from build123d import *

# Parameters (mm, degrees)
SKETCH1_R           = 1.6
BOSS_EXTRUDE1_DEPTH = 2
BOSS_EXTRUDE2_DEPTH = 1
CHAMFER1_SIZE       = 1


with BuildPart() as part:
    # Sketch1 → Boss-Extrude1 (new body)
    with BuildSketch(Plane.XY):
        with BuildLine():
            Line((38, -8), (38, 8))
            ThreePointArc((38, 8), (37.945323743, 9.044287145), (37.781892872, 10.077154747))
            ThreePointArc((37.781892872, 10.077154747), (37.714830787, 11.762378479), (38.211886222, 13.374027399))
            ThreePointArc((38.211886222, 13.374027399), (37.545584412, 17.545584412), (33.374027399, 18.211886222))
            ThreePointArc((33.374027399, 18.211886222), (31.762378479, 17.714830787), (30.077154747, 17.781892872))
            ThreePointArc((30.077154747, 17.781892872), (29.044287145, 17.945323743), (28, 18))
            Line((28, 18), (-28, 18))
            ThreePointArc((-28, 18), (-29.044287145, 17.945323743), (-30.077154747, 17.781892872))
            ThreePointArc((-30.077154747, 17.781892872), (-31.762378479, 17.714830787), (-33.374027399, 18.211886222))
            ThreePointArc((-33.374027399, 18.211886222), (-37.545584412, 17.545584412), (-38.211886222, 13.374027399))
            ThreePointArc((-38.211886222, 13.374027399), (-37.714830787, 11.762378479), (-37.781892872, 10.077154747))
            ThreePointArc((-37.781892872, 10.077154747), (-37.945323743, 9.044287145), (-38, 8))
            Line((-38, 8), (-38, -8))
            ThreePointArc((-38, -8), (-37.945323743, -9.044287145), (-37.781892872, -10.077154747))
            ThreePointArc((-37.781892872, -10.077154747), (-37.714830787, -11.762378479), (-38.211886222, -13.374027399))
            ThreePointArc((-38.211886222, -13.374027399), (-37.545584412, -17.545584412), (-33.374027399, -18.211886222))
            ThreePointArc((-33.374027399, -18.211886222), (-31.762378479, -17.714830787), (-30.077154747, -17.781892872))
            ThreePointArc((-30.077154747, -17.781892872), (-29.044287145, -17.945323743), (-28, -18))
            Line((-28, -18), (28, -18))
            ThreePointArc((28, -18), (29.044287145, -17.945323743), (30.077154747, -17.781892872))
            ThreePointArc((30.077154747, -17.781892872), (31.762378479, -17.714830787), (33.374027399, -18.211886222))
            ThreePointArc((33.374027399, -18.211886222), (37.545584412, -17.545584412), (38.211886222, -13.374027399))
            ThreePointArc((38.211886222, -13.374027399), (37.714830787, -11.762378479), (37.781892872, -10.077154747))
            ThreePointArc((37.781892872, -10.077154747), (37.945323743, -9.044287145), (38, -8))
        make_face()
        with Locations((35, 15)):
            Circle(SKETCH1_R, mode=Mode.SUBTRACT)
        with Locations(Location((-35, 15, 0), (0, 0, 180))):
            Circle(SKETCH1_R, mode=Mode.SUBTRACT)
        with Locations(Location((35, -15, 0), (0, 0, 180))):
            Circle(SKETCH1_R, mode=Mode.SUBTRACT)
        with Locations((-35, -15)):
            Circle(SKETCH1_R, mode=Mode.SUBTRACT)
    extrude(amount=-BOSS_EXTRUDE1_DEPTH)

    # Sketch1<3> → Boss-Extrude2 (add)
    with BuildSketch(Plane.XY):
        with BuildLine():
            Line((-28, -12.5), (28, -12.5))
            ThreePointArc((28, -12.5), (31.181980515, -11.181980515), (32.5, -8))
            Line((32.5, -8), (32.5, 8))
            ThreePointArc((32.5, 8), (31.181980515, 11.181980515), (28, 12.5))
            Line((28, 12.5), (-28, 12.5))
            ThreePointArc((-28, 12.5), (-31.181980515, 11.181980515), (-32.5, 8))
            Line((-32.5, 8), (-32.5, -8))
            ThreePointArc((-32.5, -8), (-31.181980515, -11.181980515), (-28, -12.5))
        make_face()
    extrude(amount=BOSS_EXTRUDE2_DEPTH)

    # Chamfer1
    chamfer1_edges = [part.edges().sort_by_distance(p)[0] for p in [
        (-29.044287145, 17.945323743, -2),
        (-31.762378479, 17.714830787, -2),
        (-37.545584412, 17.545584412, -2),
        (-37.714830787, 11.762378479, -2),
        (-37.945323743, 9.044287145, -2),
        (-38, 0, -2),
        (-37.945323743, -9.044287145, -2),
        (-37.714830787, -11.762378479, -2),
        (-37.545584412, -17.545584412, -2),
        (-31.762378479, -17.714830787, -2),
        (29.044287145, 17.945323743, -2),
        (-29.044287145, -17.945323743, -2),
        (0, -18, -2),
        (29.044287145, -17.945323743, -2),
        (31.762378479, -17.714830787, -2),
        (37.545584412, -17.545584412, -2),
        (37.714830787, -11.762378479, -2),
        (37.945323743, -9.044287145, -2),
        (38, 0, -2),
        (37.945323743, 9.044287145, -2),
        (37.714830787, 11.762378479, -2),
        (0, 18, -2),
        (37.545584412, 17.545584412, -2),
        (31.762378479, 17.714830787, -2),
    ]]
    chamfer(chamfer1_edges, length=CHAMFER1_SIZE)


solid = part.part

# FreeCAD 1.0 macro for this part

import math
import FreeCAD as App
import Part
import Sketcher


def edges_at(feature, points):
    """Names of the edges that pass closest to the given points."""
    edges = feature.Shape.Edges
    near = lambda p: min(range(len(edges)), key=lambda i: edges[i].distToShape(Part.Vertex(*p))[0])
    return sorted({f"Edge{near(p) + 1}" for p in points})

doc = App.newDocument("Part")
body = doc.addObject("PartDesign::Body", "Body")

# Sketch on XY plane
sketch1 = body.newObject("Sketcher::SketchObject", "Sketch")
sketch1.AttachmentSupport = (doc.getObject("XY_Plane"), [""])
sketch1.MapMode = "FlatFace"
sketch1.addGeometry(Part.LineSegment(App.Vector(38, -8, 0), App.Vector(38, 8, 0)), False)
sketch1.addGeometry(Part.ArcOfCircle(Part.Circle(App.Vector(28, 8, 0), App.Vector(0, 0, 1), 10), math.radians(0), math.radians(11.99)), False)
sketch1.addGeometry(Part.ArcOfCircle(Part.Circle(App.Vector(42.7, 11.1, 0), App.Vector(0, 0, 1), 5), math.radians(153), math.radians(192)), False)
sketch1.addGeometry(Part.ArcOfCircle(Part.Circle(App.Vector(35, 15, 0), App.Vector(0, 0, 1), 3.6), math.radians(-27), math.radians(117)), False)
sketch1.addGeometry(Part.ArcOfCircle(Part.Circle(App.Vector(31.1, 22.7, 0), App.Vector(0, 0, 1), 5), math.radians(-102), math.radians(-63)), False)
sketch1.addGeometry(Part.ArcOfCircle(Part.Circle(App.Vector(28, 8, 0), App.Vector(0, 0, 1), 10), math.radians(78.01), math.radians(90)), False)
sketch1.addGeometry(Part.LineSegment(App.Vector(28, 18, 0), App.Vector(-28, 18, 0)), False)
sketch1.addGeometry(Part.ArcOfCircle(Part.Circle(App.Vector(-28, 8, 0), App.Vector(0, 0, 1), 10), math.radians(90), math.radians(101.99)), False)
sketch1.addGeometry(Part.ArcOfCircle(Part.Circle(App.Vector(-31.1, 22.7, 0), App.Vector(0, 0, 1), 5), math.radians(-117), math.radians(-78)), False)
sketch1.addGeometry(Part.ArcOfCircle(Part.Circle(App.Vector(-35, 15, 0), App.Vector(0, 0, 1), 3.6), math.radians(63), math.radians(207)), False)
sketch1.addGeometry(Part.ArcOfCircle(Part.Circle(App.Vector(-42.7, 11.1, 0), App.Vector(0, 0, 1), 5), math.radians(-12), math.radians(27)), False)
sketch1.addGeometry(Part.ArcOfCircle(Part.Circle(App.Vector(-28, 8, 0), App.Vector(0, 0, 1), 10), math.radians(168.01), math.radians(180)), False)
sketch1.addGeometry(Part.LineSegment(App.Vector(-38, 8, 0), App.Vector(-38, -8, 0)), False)
sketch1.addGeometry(Part.ArcOfCircle(Part.Circle(App.Vector(-28, -8, 0), App.Vector(0, 0, 1), 10), math.radians(-180), math.radians(-168.01)), False)
sketch1.addGeometry(Part.ArcOfCircle(Part.Circle(App.Vector(-42.7, -11.1, 0), App.Vector(0, 0, 1), 5), math.radians(-27), math.radians(12)), False)
sketch1.addGeometry(Part.ArcOfCircle(Part.Circle(App.Vector(-35, -15, 0), App.Vector(0, 0, 1), 3.6), math.radians(153), math.radians(297)), False)
sketch1.addGeometry(Part.ArcOfCircle(Part.Circle(App.Vector(-31.1, -22.7, 0), App.Vector(0, 0, 1), 5), math.radians(78), math.radians(117)), False)
sketch1.addGeometry(Part.ArcOfCircle(Part.Circle(App.Vector(-28, -8, 0), App.Vector(0, 0, 1), 10), math.radians(-101.99), math.radians(-90)), False)
sketch1.addGeometry(Part.LineSegment(App.Vector(-28, -18, 0), App.Vector(28, -18, 0)), False)
sketch1.addGeometry(Part.ArcOfCircle(Part.Circle(App.Vector(28, -8, 0), App.Vector(0, 0, 1), 10), math.radians(-90), math.radians(-78.01)), False)
sketch1.addGeometry(Part.ArcOfCircle(Part.Circle(App.Vector(31.1, -22.7, 0), App.Vector(0, 0, 1), 5), math.radians(63), math.radians(102)), False)
sketch1.addGeometry(Part.ArcOfCircle(Part.Circle(App.Vector(35, -15, 0), App.Vector(0, 0, 1), 3.6), math.radians(-117), math.radians(27)), False)
sketch1.addGeometry(Part.ArcOfCircle(Part.Circle(App.Vector(42.7, -11.1, 0), App.Vector(0, 0, 1), 5), math.radians(168), math.radians(207)), False)
sketch1.addGeometry(Part.ArcOfCircle(Part.Circle(App.Vector(28, -8, 0), App.Vector(0, 0, 1), 10), math.radians(-11.99), math.radians(0)), False)
sketch1.addGeometry(Part.Circle(App.Vector(-35, -15, 0), App.Vector(0, 0, 1), 1.6), False)
sketch1.addGeometry(Part.Circle(App.Vector(35, -15, 0), App.Vector(0, 0, 1), 1.6), False)
sketch1.addGeometry(Part.Circle(App.Vector(-35, 15, 0), App.Vector(0, 0, 1), 1.6), False)
sketch1.addGeometry(Part.Circle(App.Vector(35, 15, 0), App.Vector(0, 0, 1), 1.6), False)
sketch1.addConstraint(Sketcher.Constraint("Tangent", 0, 2, 1, 1))
sketch1.addConstraint(Sketcher.Constraint("Tangent", 1, 2, 2, 2))
sketch1.addConstraint(Sketcher.Constraint("Tangent", 2, 1, 3, 1))
sketch1.addConstraint(Sketcher.Constraint("Tangent", 3, 2, 4, 2))
sketch1.addConstraint(Sketcher.Constraint("Tangent", 4, 1, 5, 1))
sketch1.addConstraint(Sketcher.Constraint("Tangent", 5, 2, 6, 1))
sketch1.addConstraint(Sketcher.Constraint("Tangent", 6, 2, 7, 1))
sketch1.addConstraint(Sketcher.Constraint("Tangent", 7, 2, 8, 2))
sketch1.addConstraint(Sketcher.Constraint("Tangent", 8, 1, 9, 1))
sketch1.addConstraint(Sketcher.Constraint("Tangent", 9, 2, 10, 2))
sketch1.addConstraint(Sketcher.Constraint("Tangent", 10, 1, 11, 1))
sketch1.addConstraint(Sketcher.Constraint("Tangent", 11, 2, 12, 1))
sketch1.addConstraint(Sketcher.Constraint("Tangent", 12, 2, 13, 1))
sketch1.addConstraint(Sketcher.Constraint("Tangent", 13, 2, 14, 2))
sketch1.addConstraint(Sketcher.Constraint("Tangent", 14, 1, 15, 1))
sketch1.addConstraint(Sketcher.Constraint("Tangent", 15, 2, 16, 2))
sketch1.addConstraint(Sketcher.Constraint("Tangent", 16, 1, 17, 1))
sketch1.addConstraint(Sketcher.Constraint("Tangent", 17, 2, 18, 1))
sketch1.addConstraint(Sketcher.Constraint("Tangent", 18, 2, 19, 1))
sketch1.addConstraint(Sketcher.Constraint("Tangent", 19, 2, 20, 2))
sketch1.addConstraint(Sketcher.Constraint("Tangent", 20, 1, 21, 1))
sketch1.addConstraint(Sketcher.Constraint("Tangent", 21, 2, 22, 2))
sketch1.addConstraint(Sketcher.Constraint("Tangent", 22, 1, 23, 1))
sketch1.addConstraint(Sketcher.Constraint("Tangent", 23, 2, 0, 1))
sketch1.addConstraint(Sketcher.Constraint("Vertical", 0))
sketch1.addConstraint(Sketcher.Constraint("Horizontal", 6))
sketch1.addConstraint(Sketcher.Constraint("Vertical", 12))
sketch1.addConstraint(Sketcher.Constraint("Horizontal", 18))
sketch1.addConstraint(Sketcher.Constraint("Coincident", 5, 3, 1, 3))
sketch1.addConstraint(Sketcher.Constraint("Coincident", 11, 3, 7, 3))
sketch1.addConstraint(Sketcher.Constraint("Coincident", 17, 3, 13, 3))
sketch1.addConstraint(Sketcher.Constraint("Coincident", 23, 3, 19, 3))
sketch1.addConstraint(Sketcher.Constraint("Coincident", 24, 3, 15, 3))
sketch1.addConstraint(Sketcher.Constraint("Coincident", 25, 3, 21, 3))
sketch1.addConstraint(Sketcher.Constraint("Coincident", 26, 3, 9, 3))
sketch1.addConstraint(Sketcher.Constraint("Coincident", 27, 3, 3, 3))
sketch1.addConstraint(Sketcher.Constraint("Equal", 2, 4))
sketch1.addConstraint(Sketcher.Constraint("Equal", 1, 5))
sketch1.addConstraint(Sketcher.Constraint("Equal", 5, 7))
sketch1.addConstraint(Sketcher.Constraint("Equal", 4, 8))
sketch1.addConstraint(Sketcher.Constraint("Equal", 3, 9))
sketch1.addConstraint(Sketcher.Constraint("Equal", 8, 10))
sketch1.addConstraint(Sketcher.Constraint("Equal", 7, 11))
sketch1.addConstraint(Sketcher.Constraint("Equal", 11, 13))
sketch1.addConstraint(Sketcher.Constraint("Equal", 10, 14))
sketch1.addConstraint(Sketcher.Constraint("Equal", 9, 15))
sketch1.addConstraint(Sketcher.Constraint("Equal", 14, 16))
sketch1.addConstraint(Sketcher.Constraint("Equal", 13, 17))
sketch1.addConstraint(Sketcher.Constraint("Equal", 17, 19))
sketch1.addConstraint(Sketcher.Constraint("Equal", 16, 20))
sketch1.addConstraint(Sketcher.Constraint("Equal", 15, 21))
sketch1.addConstraint(Sketcher.Constraint("Equal", 20, 22))
sketch1.addConstraint(Sketcher.Constraint("Equal", 19, 23))
sketch1.addConstraint(Sketcher.Constraint("Equal", 24, 25))
sketch1.addConstraint(Sketcher.Constraint("Equal", 25, 26))
sketch1.addConstraint(Sketcher.Constraint("Equal", 26, 27))
sketch1.addConstraint(Sketcher.Constraint("Symmetric", 1, 3, 13, 3, -1, 1))
sketch1.addConstraint(Sketcher.Constraint("Symmetric", 3, 3, 15, 3, -1, 1))
sketch1.addConstraint(Sketcher.Constraint("Symmetric", 9, 3, 21, 3, -1, 1))
sketch1.addConstraint(Sketcher.Constraint("Symmetric", 3, 3, 9, 3, -2))
sketch1.addConstraint(Sketcher.Constraint("Radius", 1, 10.0))
sketch1.addConstraint(Sketcher.Constraint("Radius", 2, 5.0))
sketch1.addConstraint(Sketcher.Constraint("Diameter", 24, 3.2))
sketch1.addConstraint(Sketcher.Constraint("Radius", 3, 3.6))
sketch1.addConstraint(Sketcher.Constraint("DistanceX", 6, 2, 6, 1, 56.0))
sketch1.addConstraint(Sketcher.Constraint("DistanceY", 0, 1, 0, 2, 16.0))
sketch1.addConstraint(Sketcher.Constraint("DistanceX", -1, 1, 3, 3, 35.0))
sketch1.addConstraint(Sketcher.Constraint("DistanceY", -1, 1, 3, 3, 15.0))
pad1 = body.newObject("PartDesign::Pad", "Pad")
pad1.Profile = sketch1
pad1.Length = 2
pad1.Reversed = True

# Sketch on XY plane
sketch2 = body.newObject("Sketcher::SketchObject", "Sketch001")
sketch2.AttachmentSupport = (doc.getObject("XY_Plane"), [""])
sketch2.MapMode = "FlatFace"
sketch2.addGeometry(Part.LineSegment(App.Vector(-28, -12.5, 0), App.Vector(28, -12.5, 0)), False)
sketch2.addGeometry(Part.ArcOfCircle(Part.Circle(App.Vector(28, -8, 0), App.Vector(0, 0, 1), 4.5), math.radians(-90), math.radians(0)), False)
sketch2.addGeometry(Part.LineSegment(App.Vector(32.5, -8, 0), App.Vector(32.5, 8, 0)), False)
sketch2.addGeometry(Part.ArcOfCircle(Part.Circle(App.Vector(28, 8, 0), App.Vector(0, 0, 1), 4.5), math.radians(0), math.radians(90)), False)
sketch2.addGeometry(Part.LineSegment(App.Vector(28, 12.5, 0), App.Vector(-28, 12.5, 0)), False)
sketch2.addGeometry(Part.ArcOfCircle(Part.Circle(App.Vector(-28, 8, 0), App.Vector(0, 0, 1), 4.5), math.radians(90), math.radians(180)), False)
sketch2.addGeometry(Part.LineSegment(App.Vector(-32.5, 8, 0), App.Vector(-32.5, -8, 0)), False)
sketch2.addGeometry(Part.ArcOfCircle(Part.Circle(App.Vector(-28, -8, 0), App.Vector(0, 0, 1), 4.5), math.radians(-180), math.radians(-90)), False)
sketch2.addConstraint(Sketcher.Constraint("Tangent", 0, 2, 1, 1))
sketch2.addConstraint(Sketcher.Constraint("Tangent", 1, 2, 2, 1))
sketch2.addConstraint(Sketcher.Constraint("Tangent", 2, 2, 3, 1))
sketch2.addConstraint(Sketcher.Constraint("Tangent", 3, 2, 4, 1))
sketch2.addConstraint(Sketcher.Constraint("Tangent", 4, 2, 5, 1))
sketch2.addConstraint(Sketcher.Constraint("Tangent", 5, 2, 6, 1))
sketch2.addConstraint(Sketcher.Constraint("Tangent", 6, 2, 7, 1))
sketch2.addConstraint(Sketcher.Constraint("Tangent", 7, 2, 0, 1))
sketch2.addConstraint(Sketcher.Constraint("Horizontal", 0))
sketch2.addConstraint(Sketcher.Constraint("Vertical", 2))
sketch2.addConstraint(Sketcher.Constraint("Horizontal", 4))
sketch2.addConstraint(Sketcher.Constraint("Vertical", 6))
sketch2.addConstraint(Sketcher.Constraint("Equal", 1, 3))
sketch2.addConstraint(Sketcher.Constraint("Equal", 3, 5))
sketch2.addConstraint(Sketcher.Constraint("Equal", 5, 7))
sketch2.addConstraint(Sketcher.Constraint("Symmetric", 1, 3, 5, 3, -1, 1))
sketch2.addConstraint(Sketcher.Constraint("Radius", 1, 4.5))
sketch2.addConstraint(Sketcher.Constraint("DistanceX", 0, 1, 0, 2, 56.0))
sketch2.addConstraint(Sketcher.Constraint("DistanceY", 2, 1, 2, 2, 16.0))
pad2 = body.newObject("PartDesign::Pad", "Pad001")
pad2.Profile = sketch2
pad2.Length = 1
doc.recompute()

chamfer = body.newObject("PartDesign::Chamfer", "Chamfer")
chamfer.Base = (pad2, edges_at(pad2, [
    (-29.044, 17.945, -2),
    (-31.762, 17.715, -2),
    (-37.546, 17.546, -2),
    (-37.715, 11.762, -2),
    (-37.945, 9.044, -2),
    (-38, 0, -2),
    (-37.945, -9.044, -2),
    (-37.715, -11.762, -2),
    (-37.546, -17.546, -2),
    (-31.762, -17.715, -2),
    (29.044, 17.945, -2),
    (-29.044, -17.945, -2),
    (0, -18, -2),
    (29.044, -17.945, -2),
    (31.762, -17.715, -2),
    (37.546, -17.546, -2),
    (37.715, -11.762, -2),
    (37.945, -9.044, -2),
    (38, 0, -2),
    (37.945, 9.044, -2),
    (37.715, 11.762, -2),
    (0, 18, -2),
    (37.546, 17.546, -2),
    (31.762, 17.715, -2),
]))
chamfer.Size = 1

doc.recompute()
